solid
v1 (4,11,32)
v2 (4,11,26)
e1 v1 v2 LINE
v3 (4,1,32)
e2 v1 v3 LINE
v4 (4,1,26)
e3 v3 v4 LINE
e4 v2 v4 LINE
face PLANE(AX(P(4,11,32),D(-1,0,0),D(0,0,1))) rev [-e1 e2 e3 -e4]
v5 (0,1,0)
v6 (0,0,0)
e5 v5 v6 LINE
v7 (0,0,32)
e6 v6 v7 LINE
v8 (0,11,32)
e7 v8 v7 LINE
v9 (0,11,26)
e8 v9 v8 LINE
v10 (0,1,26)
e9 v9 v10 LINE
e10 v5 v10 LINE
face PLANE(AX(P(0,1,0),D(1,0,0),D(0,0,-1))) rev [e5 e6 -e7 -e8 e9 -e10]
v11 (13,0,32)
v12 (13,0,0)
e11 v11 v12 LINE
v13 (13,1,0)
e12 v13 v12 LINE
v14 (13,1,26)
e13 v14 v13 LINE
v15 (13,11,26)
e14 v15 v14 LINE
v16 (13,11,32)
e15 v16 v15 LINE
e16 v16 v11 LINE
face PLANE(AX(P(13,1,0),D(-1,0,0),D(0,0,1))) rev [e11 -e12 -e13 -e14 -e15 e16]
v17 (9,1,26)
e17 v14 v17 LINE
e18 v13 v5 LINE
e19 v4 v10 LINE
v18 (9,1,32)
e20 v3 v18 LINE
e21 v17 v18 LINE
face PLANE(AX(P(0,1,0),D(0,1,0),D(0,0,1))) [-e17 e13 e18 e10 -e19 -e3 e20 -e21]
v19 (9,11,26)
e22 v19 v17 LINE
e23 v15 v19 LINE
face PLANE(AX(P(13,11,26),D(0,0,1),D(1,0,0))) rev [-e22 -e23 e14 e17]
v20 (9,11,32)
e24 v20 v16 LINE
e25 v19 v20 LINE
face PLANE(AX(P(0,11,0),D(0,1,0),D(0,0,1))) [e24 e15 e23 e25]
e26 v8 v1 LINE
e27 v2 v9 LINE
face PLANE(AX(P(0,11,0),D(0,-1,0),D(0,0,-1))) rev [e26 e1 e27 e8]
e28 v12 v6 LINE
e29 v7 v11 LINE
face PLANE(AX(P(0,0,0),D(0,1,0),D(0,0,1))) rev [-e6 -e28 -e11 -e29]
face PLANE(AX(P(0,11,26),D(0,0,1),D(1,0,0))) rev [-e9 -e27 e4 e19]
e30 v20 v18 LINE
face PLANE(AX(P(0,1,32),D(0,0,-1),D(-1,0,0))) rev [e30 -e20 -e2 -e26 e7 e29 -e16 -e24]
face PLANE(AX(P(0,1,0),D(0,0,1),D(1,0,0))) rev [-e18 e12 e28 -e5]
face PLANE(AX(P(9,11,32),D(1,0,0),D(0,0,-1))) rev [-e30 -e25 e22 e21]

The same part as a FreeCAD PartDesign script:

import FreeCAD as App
import Part
import Sketcher
from FreeCAD import Vector
Q = App.Units.Quantity


def add_polygon(sketch, points):
    """Adds a closed chain of lines whose ends are joined by coincident constraints."""
    first, n = sketch.GeometryCount, len(points)
    for a, b in zip(points, points[1:] + points[:1]):
        sketch.addGeometry(Part.LineSegment(App.Vector(*a, 0), App.Vector(*b, 0)), False)
    for i in range(n):
        sketch.addConstraint(Sketcher.Constraint("Coincident", first + i, 2, first + (i + 1) % n, 1))

doc = App.newDocument("Part")
params = doc.addObject("Spreadsheet::Sheet", "Params")
for row, (alias, value) in enumerate([
    ("sketch1_width", "13 mm"),
    ("sketch1_height", "32 mm"),
    ("pad1_length", "1 mm"),
    ("sketch2_width", "4 mm"),
    ("sketch2_height", "6 mm"),
    ("pad2_length", "10 mm"),
], start=1):
    params.set(f"A{row}", alias)
    params.set(f"B{row}", "=" + value)
    params.setAlias(f"B{row}", alias)

body = doc.addObject("PartDesign::Body", "Body")

# Sketch on XZ plane
sketch1 = doc.addObject("Sketcher::SketchObject", "Sketch")
body.addObject(sketch1)
sketch1.AttachmentSupport = (doc.XZ_Plane, [""])
sketch1.MapMode = "FlatFace"
add_polygon(sketch1, [(0, 0), (0, 32), (13, 32), (13, 0)])  # lines 0-3
sketch1.addConstraint([
    Sketcher.Constraint("Vertical", 0),
    Sketcher.Constraint("Horizontal", 1),
    Sketcher.Constraint("Vertical", 2),
    Sketcher.Constraint("Horizontal", 3),
    Sketcher.Constraint("Coincident", 3, 2, -1, 1),
    Sketcher.Constraint("DistanceX", 1, 1, 1, 2, Q("13 mm")),
    Sketcher.Constraint("DistanceY", 0, 1, 0, 2, Q("32 mm")),
])
sketch1.setExpression("Constraints[9]", "Params.sketch1_width")
sketch1.setExpression("Constraints[10]", "Params.sketch1_height")
pad1 = doc.addObject("PartDesign::Pad", "Pad")
body.addObject(pad1)
pad1.Profile = sketch1
pad1.setExpression("Length", "Params.pad1_length")
pad1.Reversed = True

# Sketch on XZ plane
sketch2 = doc.addObject("Sketcher::SketchObject", "Sketch001")
body.addObject(sketch2)
sketch2.AttachmentSupport = (doc.XZ_Plane, [""])
sketch2.MapMode = "FlatFace"
sketch2.AttachmentOffset = App.Placement(Vector(0, 0, -1), App.Rotation())
add_polygon(sketch2, [(9, 26), (9, 32), (13, 32), (13, 26)])  # lines 0-3
add_polygon(sketch2, [(0, 26), (0, 32), (4, 32), (4, 26)])  # lines 4-7
sketch2.addConstraint([
    Sketcher.Constraint("Vertical", 0),
    Sketcher.Constraint("Horizontal", 1),
    Sketcher.Constraint("Vertical", 2),
    Sketcher.Constraint("Horizontal", 3),
    Sketcher.Constraint("Vertical", 4),
    Sketcher.Constraint("Horizontal", 5),
    Sketcher.Constraint("Vertical", 6),
    Sketcher.Constraint("Horizontal", 7),
    Sketcher.Constraint("PointOnObject", 4, 2, -2),
    Sketcher.Constraint("Horizontal", 1, 2, 4, 2),
    Sketcher.Constraint("Horizontal", 3, 2, 6, 2),
    Sketcher.Constraint("Equal", 3, 5),
    Sketcher.Constraint("DistanceX", 1, 1, 1, 2, Q("4 mm")),
    Sketcher.Constraint("DistanceY", 0, 1, 0, 2, Q("6 mm")),
    Sketcher.Constraint("DistanceX", -1, 1, 0, 2, Q("9 mm")),
    Sketcher.Constraint("DistanceY", -1, 1, 0, 2, Q("32 mm")),
])
sketch2.setExpression("Constraints[20]", "Params.sketch2_width")
sketch2.setExpression("Constraints[21]", "Params.sketch2_height")
pad2 = doc.addObject("PartDesign::Pad", "Pad001")
body.addObject(pad2)
pad2.Profile = sketch2
pad2.setExpression("Length", "Params.pad2_length")
pad2.Reversed = True

doc.recompute()
